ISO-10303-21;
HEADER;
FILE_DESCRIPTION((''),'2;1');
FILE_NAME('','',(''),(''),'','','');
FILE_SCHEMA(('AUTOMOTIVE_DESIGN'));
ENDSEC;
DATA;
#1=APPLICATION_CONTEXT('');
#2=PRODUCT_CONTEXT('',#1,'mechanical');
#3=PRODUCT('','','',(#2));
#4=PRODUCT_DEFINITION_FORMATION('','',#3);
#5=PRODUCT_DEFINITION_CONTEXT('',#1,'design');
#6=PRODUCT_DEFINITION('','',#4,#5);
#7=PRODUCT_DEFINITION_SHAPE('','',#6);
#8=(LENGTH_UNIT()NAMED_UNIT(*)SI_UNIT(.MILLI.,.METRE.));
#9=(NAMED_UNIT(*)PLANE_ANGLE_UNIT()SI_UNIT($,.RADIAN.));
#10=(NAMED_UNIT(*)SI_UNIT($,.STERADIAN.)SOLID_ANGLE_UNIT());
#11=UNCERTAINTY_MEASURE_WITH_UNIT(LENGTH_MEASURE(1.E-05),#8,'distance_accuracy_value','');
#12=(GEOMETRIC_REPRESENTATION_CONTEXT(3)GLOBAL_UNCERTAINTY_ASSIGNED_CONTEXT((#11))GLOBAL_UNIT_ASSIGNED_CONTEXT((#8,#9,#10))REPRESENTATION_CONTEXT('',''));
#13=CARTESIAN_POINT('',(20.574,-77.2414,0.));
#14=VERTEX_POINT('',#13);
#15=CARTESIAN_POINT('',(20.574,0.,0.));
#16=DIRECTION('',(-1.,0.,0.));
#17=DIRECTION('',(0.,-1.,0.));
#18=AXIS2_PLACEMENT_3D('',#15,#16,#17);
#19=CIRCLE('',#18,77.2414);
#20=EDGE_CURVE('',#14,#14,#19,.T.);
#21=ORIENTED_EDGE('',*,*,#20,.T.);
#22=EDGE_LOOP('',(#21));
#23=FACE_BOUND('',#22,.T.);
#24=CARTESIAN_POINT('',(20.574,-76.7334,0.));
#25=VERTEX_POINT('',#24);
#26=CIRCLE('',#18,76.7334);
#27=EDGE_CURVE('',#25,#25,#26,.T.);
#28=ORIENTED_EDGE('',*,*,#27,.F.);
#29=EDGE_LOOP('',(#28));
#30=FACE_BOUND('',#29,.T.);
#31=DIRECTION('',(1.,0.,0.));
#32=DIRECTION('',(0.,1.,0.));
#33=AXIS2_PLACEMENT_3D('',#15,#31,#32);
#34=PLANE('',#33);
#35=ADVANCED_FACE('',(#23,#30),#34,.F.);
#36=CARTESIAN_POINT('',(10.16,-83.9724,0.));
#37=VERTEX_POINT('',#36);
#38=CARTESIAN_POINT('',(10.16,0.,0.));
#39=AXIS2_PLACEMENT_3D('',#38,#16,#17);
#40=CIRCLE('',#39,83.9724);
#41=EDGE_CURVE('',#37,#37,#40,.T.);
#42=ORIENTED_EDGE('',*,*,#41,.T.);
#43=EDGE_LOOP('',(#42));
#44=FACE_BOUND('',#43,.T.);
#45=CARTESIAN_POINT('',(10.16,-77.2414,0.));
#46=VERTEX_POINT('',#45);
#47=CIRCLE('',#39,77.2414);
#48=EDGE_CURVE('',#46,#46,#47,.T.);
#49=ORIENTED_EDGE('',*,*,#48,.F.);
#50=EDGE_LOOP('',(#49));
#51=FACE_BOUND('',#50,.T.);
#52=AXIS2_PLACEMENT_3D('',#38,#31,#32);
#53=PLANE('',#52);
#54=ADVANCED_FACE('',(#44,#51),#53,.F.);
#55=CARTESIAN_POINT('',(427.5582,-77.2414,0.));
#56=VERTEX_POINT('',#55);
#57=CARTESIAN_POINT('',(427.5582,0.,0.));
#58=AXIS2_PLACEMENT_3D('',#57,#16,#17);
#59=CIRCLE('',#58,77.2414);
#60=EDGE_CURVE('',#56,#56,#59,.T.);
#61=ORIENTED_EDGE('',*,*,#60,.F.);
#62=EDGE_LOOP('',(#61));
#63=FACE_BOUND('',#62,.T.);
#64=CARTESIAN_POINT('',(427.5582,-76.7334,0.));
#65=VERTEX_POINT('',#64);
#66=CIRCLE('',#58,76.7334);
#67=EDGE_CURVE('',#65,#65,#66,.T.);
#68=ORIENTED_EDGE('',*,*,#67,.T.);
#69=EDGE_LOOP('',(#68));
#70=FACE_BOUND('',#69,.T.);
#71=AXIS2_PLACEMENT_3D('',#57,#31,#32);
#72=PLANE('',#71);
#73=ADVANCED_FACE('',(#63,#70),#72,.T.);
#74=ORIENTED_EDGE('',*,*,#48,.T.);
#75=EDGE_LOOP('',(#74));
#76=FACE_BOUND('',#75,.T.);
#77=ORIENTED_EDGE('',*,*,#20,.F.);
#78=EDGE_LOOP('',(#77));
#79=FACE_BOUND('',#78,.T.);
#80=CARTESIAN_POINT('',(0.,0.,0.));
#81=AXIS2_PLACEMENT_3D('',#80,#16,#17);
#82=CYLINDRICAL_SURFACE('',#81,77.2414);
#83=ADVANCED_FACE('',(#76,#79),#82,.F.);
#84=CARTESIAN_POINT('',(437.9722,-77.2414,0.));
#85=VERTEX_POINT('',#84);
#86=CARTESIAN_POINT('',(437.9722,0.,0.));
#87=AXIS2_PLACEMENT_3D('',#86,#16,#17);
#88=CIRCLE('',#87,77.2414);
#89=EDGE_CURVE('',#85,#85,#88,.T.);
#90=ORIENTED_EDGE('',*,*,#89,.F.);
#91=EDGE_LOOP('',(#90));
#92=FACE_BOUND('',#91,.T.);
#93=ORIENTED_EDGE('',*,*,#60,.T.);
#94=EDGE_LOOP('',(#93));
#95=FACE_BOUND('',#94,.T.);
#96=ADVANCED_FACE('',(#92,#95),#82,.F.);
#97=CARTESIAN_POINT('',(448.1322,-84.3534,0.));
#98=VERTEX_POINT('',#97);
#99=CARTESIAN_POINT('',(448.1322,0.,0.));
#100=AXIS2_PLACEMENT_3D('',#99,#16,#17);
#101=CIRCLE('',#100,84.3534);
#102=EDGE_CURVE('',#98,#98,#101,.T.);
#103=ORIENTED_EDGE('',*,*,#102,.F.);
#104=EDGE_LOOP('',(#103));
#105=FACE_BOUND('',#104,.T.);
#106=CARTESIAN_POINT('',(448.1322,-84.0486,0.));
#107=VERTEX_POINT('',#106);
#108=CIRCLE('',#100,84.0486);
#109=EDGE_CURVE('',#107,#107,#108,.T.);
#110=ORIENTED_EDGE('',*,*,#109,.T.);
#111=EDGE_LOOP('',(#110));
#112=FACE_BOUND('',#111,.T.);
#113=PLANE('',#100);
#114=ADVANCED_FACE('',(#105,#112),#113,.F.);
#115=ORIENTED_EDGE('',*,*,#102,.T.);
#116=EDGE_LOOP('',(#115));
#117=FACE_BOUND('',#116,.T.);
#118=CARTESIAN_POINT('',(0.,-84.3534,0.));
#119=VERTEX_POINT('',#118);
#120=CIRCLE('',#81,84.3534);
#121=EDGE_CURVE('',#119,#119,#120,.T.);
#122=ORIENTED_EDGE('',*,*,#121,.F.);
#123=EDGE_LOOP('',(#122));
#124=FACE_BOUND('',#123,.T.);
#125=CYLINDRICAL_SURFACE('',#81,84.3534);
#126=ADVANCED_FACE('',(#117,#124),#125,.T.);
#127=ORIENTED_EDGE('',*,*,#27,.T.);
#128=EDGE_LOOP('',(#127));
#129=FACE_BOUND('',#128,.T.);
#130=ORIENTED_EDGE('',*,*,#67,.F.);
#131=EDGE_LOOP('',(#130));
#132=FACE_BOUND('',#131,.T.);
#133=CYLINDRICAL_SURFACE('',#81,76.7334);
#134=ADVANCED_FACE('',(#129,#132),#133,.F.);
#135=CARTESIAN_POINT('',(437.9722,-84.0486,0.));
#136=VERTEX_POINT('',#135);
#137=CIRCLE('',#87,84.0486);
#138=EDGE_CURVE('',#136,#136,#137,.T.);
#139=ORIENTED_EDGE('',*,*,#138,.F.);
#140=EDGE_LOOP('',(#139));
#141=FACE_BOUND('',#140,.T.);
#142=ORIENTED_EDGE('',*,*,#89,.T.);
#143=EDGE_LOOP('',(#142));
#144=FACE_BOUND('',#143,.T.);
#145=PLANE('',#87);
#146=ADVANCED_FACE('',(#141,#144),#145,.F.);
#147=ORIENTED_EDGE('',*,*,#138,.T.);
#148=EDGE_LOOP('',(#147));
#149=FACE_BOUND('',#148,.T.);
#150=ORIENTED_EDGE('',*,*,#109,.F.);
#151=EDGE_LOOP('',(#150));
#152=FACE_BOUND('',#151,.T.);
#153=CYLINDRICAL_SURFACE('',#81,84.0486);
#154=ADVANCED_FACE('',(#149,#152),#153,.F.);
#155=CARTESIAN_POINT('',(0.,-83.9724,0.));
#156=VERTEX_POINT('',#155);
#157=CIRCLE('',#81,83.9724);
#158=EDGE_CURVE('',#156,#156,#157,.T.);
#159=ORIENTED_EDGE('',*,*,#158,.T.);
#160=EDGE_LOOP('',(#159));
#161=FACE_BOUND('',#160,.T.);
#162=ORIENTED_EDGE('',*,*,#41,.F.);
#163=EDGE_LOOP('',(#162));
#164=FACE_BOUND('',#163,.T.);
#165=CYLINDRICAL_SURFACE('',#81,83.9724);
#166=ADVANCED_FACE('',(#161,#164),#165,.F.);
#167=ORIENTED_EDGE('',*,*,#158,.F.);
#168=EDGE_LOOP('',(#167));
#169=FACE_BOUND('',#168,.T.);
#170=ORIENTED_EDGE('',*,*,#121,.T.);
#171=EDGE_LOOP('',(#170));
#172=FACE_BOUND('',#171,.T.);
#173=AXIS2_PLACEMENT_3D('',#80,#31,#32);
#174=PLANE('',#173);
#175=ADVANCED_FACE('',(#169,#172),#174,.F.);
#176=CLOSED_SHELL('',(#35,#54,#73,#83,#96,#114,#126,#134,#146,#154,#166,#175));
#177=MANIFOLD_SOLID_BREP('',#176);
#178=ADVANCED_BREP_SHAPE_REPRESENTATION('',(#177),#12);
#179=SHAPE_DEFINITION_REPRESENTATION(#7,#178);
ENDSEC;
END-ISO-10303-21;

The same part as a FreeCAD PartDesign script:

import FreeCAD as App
import Part
import Sketcher
from FreeCAD import Vector
Q = App.Units.Quantity


def add_polygon(sketch, points):
    """Adds a closed chain of lines whose ends are joined by coincident constraints."""
    first, n = sketch.GeometryCount, len(points)
    for a, b in zip(points, points[1:] + points[:1]):
        sketch.addGeometry(Part.LineSegment(App.Vector(*a, 0), App.Vector(*b, 0)), False)
    for i in range(n):
        sketch.addConstraint(Sketcher.Constraint("Coincident", first + i, 2, first + (i + 1) % n, 1))

doc = App.newDocument("Part")
body = doc.addObject("PartDesign::Body", "Body")

sketch1 = body.newObject("Sketcher::SketchObject", "Sketch")
sketch1.AttachmentSupport = (doc.getObject("XY_Plane"), [""])
sketch1.MapMode = "FlatFace"
add_polygon(sketch1, [(0, 83.97), (10.16, 83.97), (10.16, 77.24), (20.57, 77.24), (20.57, 76.73), (427.56, 76.73), (427.56, 77.24), (437.97, 77.24), (437.97, 84.05), (448.13, 84.05), (448.13, 84.35), (0, 84.35)])
sketch1.addConstraint(Sketcher.Constraint("Horizontal", 0))
sketch1.addConstraint(Sketcher.Constraint("Vertical", 1))
sketch1.addConstraint(Sketcher.Constraint("Horizontal", 2))
sketch1.addConstraint(Sketcher.Constraint("Vertical", 3))
sketch1.addConstraint(Sketcher.Constraint("Horizontal", 4))
sketch1.addConstraint(Sketcher.Constraint("Vertical", 5))
sketch1.addConstraint(Sketcher.Constraint("Horizontal", 6))
sketch1.addConstraint(Sketcher.Constraint("Vertical", 7))
sketch1.addConstraint(Sketcher.Constraint("Horizontal", 8))
sketch1.addConstraint(Sketcher.Constraint("Vertical", 9))
sketch1.addConstraint(Sketcher.Constraint("Horizontal", 10))
sketch1.addConstraint(Sketcher.Constraint("Vertical", 11))
sketch1.addConstraint(Sketcher.Constraint("PointOnObject", 10, 2, -2))
sketch1.addConstraint(Sketcher.Constraint("Horizontal", 2, 2, 5, 2))
sketch1.addConstraint(Sketcher.Constraint("Equal", 2, 6))
sketch1.addConstraint(Sketcher.Constraint("Equal", 0, 8))
sketch1.addConstraint(Sketcher.Constraint("DistanceX", 0, 1, 0, 2, Q("0.4 in")))
sketch1.addConstraint(Sketcher.Constraint("DistanceX", 2, 1, 2, 2, Q("0.41 in")))
sketch1.addConstraint(Sketcher.Constraint("DistanceY", 3, 2, 3, 1, Q("0.02 in")))
sketch1.addConstraint(Sketcher.Constraint("DistanceY", 4, 2, 9, 2, Q("0.3 in")))
sketch1.addConstraint(Sketcher.Constraint("DistanceX", 4, 1, 4, 2, Q("16.023 in")))
sketch1.addConstraint(Sketcher.Constraint("DistanceY", 1, 2, 1, 1, Q("0.265 in")))
sketch1.addConstraint(Sketcher.Constraint("DistanceY", 7, 1, 7, 2, Q("0.268 in")))
sketch1.addConstraint(Sketcher.Constraint("DistanceY", -1, 1, 0, 2, Q("3.306 in")))
revolution = body.newObject("PartDesign::Revolution", "Revolution")
revolution.Profile = sketch1
revolution.ReferenceAxis = (sketch1, ["H_Axis"])
revolution.Angle = 360

doc.recompute()
